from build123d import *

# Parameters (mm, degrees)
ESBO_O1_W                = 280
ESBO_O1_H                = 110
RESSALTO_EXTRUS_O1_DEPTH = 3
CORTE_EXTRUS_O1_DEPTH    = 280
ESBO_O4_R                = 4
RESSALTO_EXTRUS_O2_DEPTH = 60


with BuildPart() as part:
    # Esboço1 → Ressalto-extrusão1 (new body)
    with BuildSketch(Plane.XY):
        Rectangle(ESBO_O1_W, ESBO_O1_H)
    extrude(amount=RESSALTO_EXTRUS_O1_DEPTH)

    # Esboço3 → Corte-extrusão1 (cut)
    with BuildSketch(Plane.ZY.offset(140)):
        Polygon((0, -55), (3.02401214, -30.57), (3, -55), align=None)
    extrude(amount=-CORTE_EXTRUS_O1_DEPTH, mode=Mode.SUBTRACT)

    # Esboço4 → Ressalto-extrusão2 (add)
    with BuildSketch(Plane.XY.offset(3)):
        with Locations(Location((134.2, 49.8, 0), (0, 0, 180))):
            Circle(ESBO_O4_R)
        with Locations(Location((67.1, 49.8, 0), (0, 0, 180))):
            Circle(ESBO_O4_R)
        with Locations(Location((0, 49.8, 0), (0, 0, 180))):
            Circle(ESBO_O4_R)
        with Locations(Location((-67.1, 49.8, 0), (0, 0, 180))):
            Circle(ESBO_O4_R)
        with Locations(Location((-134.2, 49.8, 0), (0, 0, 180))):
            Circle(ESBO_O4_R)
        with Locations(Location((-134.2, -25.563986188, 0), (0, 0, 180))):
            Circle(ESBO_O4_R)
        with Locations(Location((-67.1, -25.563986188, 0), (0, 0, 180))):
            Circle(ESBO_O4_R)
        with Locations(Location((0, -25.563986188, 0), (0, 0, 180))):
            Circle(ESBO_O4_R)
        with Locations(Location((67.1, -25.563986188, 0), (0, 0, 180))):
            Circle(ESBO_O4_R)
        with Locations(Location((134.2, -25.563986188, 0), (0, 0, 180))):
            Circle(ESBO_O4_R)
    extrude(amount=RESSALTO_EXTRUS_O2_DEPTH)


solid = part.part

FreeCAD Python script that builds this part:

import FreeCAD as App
import Part
import Sketcher

V = App.Vector
Q = App.Units.Quantity


def add_polygon(sketch, points):
    """Adds a closed chain of lines whose ends are joined by coincident constraints."""
    first, n = sketch.GeometryCount, len(points)
    for a, b in zip(points, points[1:] + points[:1]):
        sketch.addGeometry(Part.LineSegment(App.Vector(*a, 0), App.Vector(*b, 0)), False)
    for i in range(n):
        sketch.addConstraint(Sketcher.Constraint("Coincident", first + i, 2, first + (i + 1) % n, 1))

doc = App.newDocument("Part")
params = doc.addObject("Spreadsheet::Sheet", "Params")
for row, (alias, value) in enumerate([
    ("sketch1_width", "280 mm"),
    ("sketch1_height", "110 mm"),
    ("pad1_length", "3 mm"),
    ("sketch2_height", "3 mm"),
    ("pocket1_length", "280 mm"),
    ("sketch3_diameter", "8 mm"),
    ("pad2_length", "60 mm"),
], start=1):
    params.set(f"A{row}", alias)
    params.set(f"B{row}", "=" + value)
    params.setAlias(f"B{row}", alias)

body = doc.addObject("PartDesign::Body", "Body")

# Sketch on XY plane
sketch1 = body.newObject("Sketcher::SketchObject", "Sketch")
sketch1.AttachmentSupport = (doc.getObject("XY_Plane"), [""])
sketch1.MapMode = "FlatFace"
add_polygon(sketch1, [(-140, 55), (-140, -55), (140, -55), (140, 55)])  # lines 0-3
sketch1.addConstraint(Sketcher.Constraint("Vertical", 0))
sketch1.addConstraint(Sketcher.Constraint("Horizontal", 1))
sketch1.addConstraint(Sketcher.Constraint("Vertical", 2))
sketch1.addConstraint(Sketcher.Constraint("Horizontal", 3))
sketch1.addConstraint(Sketcher.Constraint("Symmetric", 0, 2, 2, 2, -1, 1))
sketch1.addConstraint(Sketcher.Constraint("DistanceX", 1, 1, 1, 2, Q("280 mm")))
sketch1.addConstraint(Sketcher.Constraint("DistanceY", 0, 2, 0, 1, Q("110 mm")))
sketch1.setExpression("Constraints[9]", "Params.sketch1_width")
sketch1.setExpression("Constraints[10]", "Params.sketch1_height")
pad1 = body.newObject("PartDesign::Pad", "Pad")
pad1.Profile = sketch1
pad1.setExpression("Length", "Params.pad1_length")

# Sketch on YZ plane
sketch2 = body.newObject("Sketcher::SketchObject", "Sketch001")
sketch2.AttachmentSupport = (doc.getObject("YZ_Plane"), [""])
sketch2.MapMode = "FlatFace"
sketch2.AttachmentOffset = App.Placement(V(0, 0, -140), App.Rotation())
add_polygon(sketch2, [(-30.57, 3.024012), (-55, 0), (-55, 3)])  # lines 0-2
sketch2.addConstraint(Sketcher.Constraint("Vertical", 1))
sketch2.addConstraint(Sketcher.Constraint("PointOnObject", 0, 2, -1))
sketch2.addConstraint(Sketcher.Constraint("DistanceY", 1, 1, 1, 2, Q("3 mm")))
sketch2.addConstraint(Sketcher.Constraint("DistanceX", 0, 2, -1, 1, Q("55 mm")))
sketch2.addConstraint(Sketcher.Constraint("DistanceX", 2, 2, -1, 1, Q("30.57 mm")))
sketch2.addConstraint(Sketcher.Constraint("Distance", 0, Q("24.616449 mm")))
sketch2.setExpression("Constraints[5]", "Params.sketch2_height")
pocket1 = body.newObject("PartDesign::Pocket", "Pocket")
pocket1.Profile = sketch2
pocket1.setExpression("Length", "Params.pocket1_length")
pocket1.Reversed = True

# Sketch on XY plane
sketch3 = body.newObject("Sketcher::SketchObject", "Sketch002")
sketch3.AttachmentSupport = (doc.getObject("XY_Plane"), [""])
sketch3.MapMode = "FlatFace"
sketch3.AttachmentOffset = App.Placement(V(0, 0, 3), App.Rotation())
sketch3.addGeometry(Part.Circle(V(134.2, 49.8, 0), V(0, 0, 1), 4), False)
sketch3.addGeometry(Part.Circle(V(67.1, 49.8, 0), V(0, 0, 1), 4), False)
sketch3.addGeometry(Part.Circle(V(0, 49.8, 0), V(0, 0, 1), 4), False)
sketch3.addGeometry(Part.Circle(V(-67.1, 49.8, 0), V(0, 0, 1), 4), False)
sketch3.addGeometry(Part.Circle(V(-134.2, 49.8, 0), V(0, 0, 1), 4), False)
sketch3.addGeometry(Part.Circle(V(-134.2, -25.563986, 0), V(0, 0, 1), 4), False)
sketch3.addGeometry(Part.Circle(V(-67.1, -25.563986, 0), V(0, 0, 1), 4), False)
sketch3.addGeometry(Part.Circle(V(0, -25.563986, 0), V(0, 0, 1), 4), False)
sketch3.addGeometry(Part.Circle(V(67.1, -25.563986, 0), V(0, 0, 1), 4), False)
sketch3.addGeometry(Part.Circle(V(134.2, -25.563986, 0), V(0, 0, 1), 4), False)
sketch3.addConstraint(Sketcher.Constraint("Equal", 0, 1))
sketch3.addConstraint(Sketcher.Constraint("Equal", 1, 2))
sketch3.addConstraint(Sketcher.Constraint("Equal", 2, 3))
sketch3.addConstraint(Sketcher.Constraint("Equal", 3, 4))
sketch3.addConstraint(Sketcher.Constraint("Equal", 4, 5))
sketch3.addConstraint(Sketcher.Constraint("Equal", 5, 6))
sketch3.addConstraint(Sketcher.Constraint("Equal", 6, 7))
sketch3.addConstraint(Sketcher.Constraint("Equal", 7, 8))
sketch3.addConstraint(Sketcher.Constraint("Equal", 8, 9))
sketch3.addConstraint(Sketcher.Constraint("Symmetric", 1, 3, 3, 3, -2))
sketch3.addConstraint(Sketcher.Constraint("Symmetric", 0, 3, 4, 3, -2))
sketch3.addConstraint(Sketcher.Constraint("Symmetric", 6, 3, 8, 3, -2))
sketch3.addConstraint(Sketcher.Constraint("Symmetric", 5, 3, 9, 3, -2))
sketch3.addConstraint(Sketcher.Constraint("PointOnObject", 2, 3, -2))
sketch3.addConstraint(Sketcher.Constraint("PointOnObject", 7, 3, -2))
sketch3.addConstraint(Sketcher.Constraint("Horizontal", 0, 3, 1, 3))
sketch3.addConstraint(Sketcher.Constraint("Horizontal", 1, 3, 2, 3))
sketch3.addConstraint(Sketcher.Constraint("Horizontal", 5, 3, 6, 3))
sketch3.addConstraint(Sketcher.Constraint("Horizontal", 6, 3, 7, 3))
sketch3.addConstraint(Sketcher.Constraint("Vertical", 4, 3, 5, 3))
sketch3.addConstraint(Sketcher.Constraint("Vertical", 3, 3, 6, 3))
sketch3.addConstraint(Sketcher.Constraint("Diameter", 0, Q("8 mm")))
sketch3.addConstraint(Sketcher.Constraint("DistanceX", -1, 1, 0, 3, Q("134.2 mm")))
sketch3.addConstraint(Sketcher.Constraint("DistanceY", -1, 1, 0, 3, Q("49.8 mm")))
sketch3.addConstraint(Sketcher.Constraint("DistanceX", -1, 1, 1, 3, Q("67.1 mm")))
sketch3.addConstraint(Sketcher.Constraint("DistanceY", 5, 3, -1, 1, Q("25.563986 mm")))
sketch3.setExpression("Constraints[21]", "Params.sketch3_diameter")
pad2 = body.newObject("PartDesign::Pad", "Pad001")
pad2.Profile = sketch3
pad2.setExpression("Length", "Params.pad2_length")

doc.recompute()
